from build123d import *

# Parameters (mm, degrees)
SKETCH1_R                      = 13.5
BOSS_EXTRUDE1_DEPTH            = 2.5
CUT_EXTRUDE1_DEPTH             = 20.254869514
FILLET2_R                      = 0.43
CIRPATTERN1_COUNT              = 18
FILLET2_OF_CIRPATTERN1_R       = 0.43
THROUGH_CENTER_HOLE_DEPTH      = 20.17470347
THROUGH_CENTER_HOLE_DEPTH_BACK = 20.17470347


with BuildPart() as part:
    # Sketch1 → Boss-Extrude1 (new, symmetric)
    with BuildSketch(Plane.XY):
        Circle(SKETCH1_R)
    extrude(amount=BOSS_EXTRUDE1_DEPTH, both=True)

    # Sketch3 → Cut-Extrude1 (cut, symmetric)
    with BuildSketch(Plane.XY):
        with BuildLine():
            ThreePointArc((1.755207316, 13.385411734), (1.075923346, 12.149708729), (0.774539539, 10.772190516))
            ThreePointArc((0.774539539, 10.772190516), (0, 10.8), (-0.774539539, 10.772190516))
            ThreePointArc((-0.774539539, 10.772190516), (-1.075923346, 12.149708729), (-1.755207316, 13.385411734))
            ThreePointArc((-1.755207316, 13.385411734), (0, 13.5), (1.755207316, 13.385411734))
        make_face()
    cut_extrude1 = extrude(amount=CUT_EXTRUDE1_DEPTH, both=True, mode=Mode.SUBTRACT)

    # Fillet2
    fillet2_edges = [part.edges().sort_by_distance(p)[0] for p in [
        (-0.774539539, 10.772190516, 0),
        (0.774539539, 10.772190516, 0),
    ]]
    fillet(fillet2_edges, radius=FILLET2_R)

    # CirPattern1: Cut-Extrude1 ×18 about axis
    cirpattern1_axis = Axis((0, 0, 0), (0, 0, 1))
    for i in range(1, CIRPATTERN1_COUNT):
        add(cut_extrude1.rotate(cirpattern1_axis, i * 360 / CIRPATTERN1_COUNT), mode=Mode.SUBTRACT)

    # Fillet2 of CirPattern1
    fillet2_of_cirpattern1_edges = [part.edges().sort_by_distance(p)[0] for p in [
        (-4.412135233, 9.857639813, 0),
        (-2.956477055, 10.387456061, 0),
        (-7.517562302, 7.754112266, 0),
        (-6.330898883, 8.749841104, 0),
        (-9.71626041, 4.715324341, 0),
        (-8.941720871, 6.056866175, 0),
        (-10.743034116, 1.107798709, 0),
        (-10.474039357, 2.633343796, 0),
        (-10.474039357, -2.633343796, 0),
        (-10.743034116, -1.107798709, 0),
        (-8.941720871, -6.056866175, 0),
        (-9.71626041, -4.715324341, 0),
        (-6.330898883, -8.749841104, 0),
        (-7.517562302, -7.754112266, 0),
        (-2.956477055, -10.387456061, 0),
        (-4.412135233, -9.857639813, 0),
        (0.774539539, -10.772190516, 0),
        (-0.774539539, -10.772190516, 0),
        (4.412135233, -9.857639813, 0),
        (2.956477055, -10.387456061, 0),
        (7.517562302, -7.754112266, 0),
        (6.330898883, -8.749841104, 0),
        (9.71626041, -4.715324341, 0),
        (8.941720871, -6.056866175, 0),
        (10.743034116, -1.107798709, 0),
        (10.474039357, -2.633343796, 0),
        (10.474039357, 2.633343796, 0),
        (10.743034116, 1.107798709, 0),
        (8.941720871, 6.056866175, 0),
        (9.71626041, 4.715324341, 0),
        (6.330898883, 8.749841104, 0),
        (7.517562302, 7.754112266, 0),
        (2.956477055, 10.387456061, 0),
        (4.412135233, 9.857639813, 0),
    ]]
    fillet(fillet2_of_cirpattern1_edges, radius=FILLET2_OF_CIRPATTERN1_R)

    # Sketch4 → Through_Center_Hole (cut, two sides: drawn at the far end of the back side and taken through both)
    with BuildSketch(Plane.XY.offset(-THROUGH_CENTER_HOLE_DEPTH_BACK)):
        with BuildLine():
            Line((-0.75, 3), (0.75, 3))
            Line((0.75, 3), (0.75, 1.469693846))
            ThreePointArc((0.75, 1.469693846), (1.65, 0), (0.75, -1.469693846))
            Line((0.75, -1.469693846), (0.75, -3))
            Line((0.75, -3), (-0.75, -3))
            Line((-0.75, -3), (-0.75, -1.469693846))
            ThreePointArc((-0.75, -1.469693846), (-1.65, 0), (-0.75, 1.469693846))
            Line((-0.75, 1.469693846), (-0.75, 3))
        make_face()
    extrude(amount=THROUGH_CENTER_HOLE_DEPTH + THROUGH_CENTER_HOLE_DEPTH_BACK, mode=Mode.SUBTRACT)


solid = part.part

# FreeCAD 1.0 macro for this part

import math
import FreeCAD as App
import Part
import Sketcher

V = App.Vector


def edges_at(feature, points):
    """Names of the edges that pass closest to the given points."""
    edges = feature.Shape.Edges
    near = lambda p: min(range(len(edges)), key=lambda i: edges[i].distToShape(Part.Vertex(*p))[0])
    return sorted({f"Edge{near(p) + 1}" for p in points})

doc = App.newDocument("Part")
body = doc.addObject("PartDesign::Body", "Body")

# Sketch on XY plane
sketch1 = body.newObject("Sketcher::SketchObject", "Sketch")
sketch1.AttachmentSupport = (doc.getObject("XY_Plane"), [""])
sketch1.MapMode = "FlatFace"
sketch1.addGeometry(Part.Circle(V(0, 0, 0), V(0, 0, 1), 13.5), False)
sketch1.addConstraint(Sketcher.Constraint("Coincident", 0, 3, -1, 1))
sketch1.addConstraint(Sketcher.Constraint("Diameter", 0, 27.0))
pad1 = body.newObject("PartDesign::Pad", "Pad")
pad1.Profile = sketch1
pad1.Length = 5
pad1.Midplane = True

# Sketch on XY plane
sketch2 = body.newObject("Sketcher::SketchObject", "Sketch001")
sketch2.AttachmentSupport = (doc.getObject("XY_Plane"), [""])
sketch2.MapMode = "FlatFace"
sketch2.addGeometry(Part.ArcOfCircle(Part.Circle(V(5.688076, 10.418899, 0), V(0, 0, 1), 4.926222), math.radians(142.973214), math.radians(175.88741)), False)
sketch2.addGeometry(Part.ArcOfCircle(Part.Circle(V(0, 0, 0), V(0, 0, 1), 13.5), math.radians(82.52952), math.radians(97.47048)), False)
sketch2.addGeometry(Part.ArcOfCircle(Part.Circle(V(-5.688076, 10.418899, 0), V(0, 0, 1), 4.926222), math.radians(4.11259), math.radians(37.026786)), False)
sketch2.addGeometry(Part.ArcOfCircle(Part.Circle(V(0, 0, 0), V(0, 0, 1), 10.8), math.radians(85.88741), math.radians(94.11259)), False)
sketch2.addConstraint(Sketcher.Constraint("Coincident", 0, 1, 1, 1))
sketch2.addConstraint(Sketcher.Constraint("Coincident", 1, 2, 2, 2))
sketch2.addConstraint(Sketcher.Constraint("Coincident", 2, 1, 3, 2))
sketch2.addConstraint(Sketcher.Constraint("Coincident", 3, 1, 0, 2))
sketch2.addConstraint(Sketcher.Constraint("Coincident", 1, 3, -1, 1))
sketch2.addConstraint(Sketcher.Constraint("Coincident", 3, 3, -1, 1))
sketch2.addConstraint(Sketcher.Constraint("Equal", 0, 2))
sketch2.addConstraint(Sketcher.Constraint("Symmetric", 0, 3, 2, 3, -2))
sketch2.addConstraint(Sketcher.Constraint("Radius", 1, 13.5))
sketch2.addConstraint(Sketcher.Constraint("Radius", 3, 10.8))
sketch2.addConstraint(Sketcher.Constraint("Radius", 0, 4.926222))
sketch2.addConstraint(Sketcher.Constraint("DistanceY", -1, 1, 0, 3, 10.418899))
sketch2.addConstraint(Sketcher.Constraint("DistanceY", -1, 1, 0, 1, 13.385412))
pocket1 = body.newObject("PartDesign::Pocket", "Pocket")
pocket1.Profile = sketch2
pocket1.Length = 40.509739
pocket1.Midplane = True
doc.recompute()

fillet = body.newObject("PartDesign::Fillet", "Fillet")
fillet.Base = (pocket1, edges_at(pocket1, [(-0.775, 10.772, 0), (0.775, 10.772, 0)]))
fillet.Radius = 0.43
doc.recompute()

polarpattern = body.newObject("PartDesign::PolarPattern", "PolarPattern")
polarpattern.Originals = [pocket1]
polarpattern.Axis = (doc.getObject("Z_Axis"), [""])
polarpattern.Angle = 360
polarpattern.Occurrences = 18
body.Tip = polarpattern
doc.recompute()

fillet2 = body.newObject("PartDesign::Fillet", "Fillet001")
fillet2.Base = (polarpattern, edges_at(polarpattern, [
    (-4.412, 9.858, 0),
    (-2.956, 10.387, 0),
    (-7.518, 7.754, 0),
    (-6.331, 8.75, 0),
    (-9.716, 4.715, 0),
    (-8.942, 6.057, 0),
    (-10.743, 1.108, 0),
    (-10.474, 2.633, 0),
    (-10.474, -2.633, 0),
    (-10.743, -1.108, 0),
    (-8.942, -6.057, 0),
    (-9.716, -4.715, 0),
    (-6.331, -8.75, 0),
    (-7.518, -7.754, 0),
    (-2.956, -10.387, 0),
    (-4.412, -9.858, 0),
    (0.775, -10.772, 0),
    (-0.775, -10.772, 0),
    (4.412, -9.858, 0),
    (2.956, -10.387, 0),
    (7.518, -7.754, 0),
    (6.331, -8.75, 0),
    (9.716, -4.715, 0),
    (8.942, -6.057, 0),
    (10.743, -1.108, 0),
    (10.474, -2.633, 0),
    (10.474, 2.633, 0),
    (10.743, 1.108, 0),
    (8.942, 6.057, 0),
    (9.716, 4.715, 0),
    (6.331, 8.75, 0),
    (7.518, 7.754, 0),
    (2.956, 10.387, 0),
    (4.412, 9.858, 0),
]))
fillet2.Radius = 0.43

# Sketch on XY plane
sketch3 = body.newObject("Sketcher::SketchObject", "Sketch002")
sketch3.AttachmentSupport = (doc.getObject("XY_Plane"), [""])
sketch3.MapMode = "FlatFace"
sketch3.addGeometry(Part.LineSegment(V(0.75, 3, 0), V(-0.75, 3, 0)), False)
sketch3.addGeometry(Part.LineSegment(V(-0.75, 3, 0), V(-0.75, 1.469694, 0)), False)
sketch3.addGeometry(Part.ArcOfCircle(Part.Circle(V(0, 0, 0), V(0, 0, 1), 1.65), math.radians(117.035692), math.radians(242.964308)), False)
sketch3.addGeometry(Part.LineSegment(V(-0.75, -1.469694, 0), V(-0.75, -3, 0)), False)
sketch3.addGeometry(Part.LineSegment(V(-0.75, -3, 0), V(0.75, -3, 0)), False)
sketch3.addGeometry(Part.LineSegment(V(0.75, -3, 0), V(0.75, -1.469694, 0)), False)
sketch3.addGeometry(Part.ArcOfCircle(Part.Circle(V(0, 0, 0), V(0, 0, 1), 1.65), math.radians(-62.964308), math.radians(62.964308)), False)
sketch3.addGeometry(Part.LineSegment(V(0.75, 1.469694, 0), V(0.75, 3, 0)), False)
sketch3.addConstraint(Sketcher.Constraint("Coincident", 0, 2, 1, 1))
sketch3.addConstraint(Sketcher.Constraint("Coincident", 1, 2, 2, 1))
sketch3.addConstraint(Sketcher.Constraint("Coincident", 2, 2, 3, 1))
sketch3.addConstraint(Sketcher.Constraint("Coincident", 3, 2, 4, 1))
sketch3.addConstraint(Sketcher.Constraint("Coincident", 4, 2, 5, 1))
sketch3.addConstraint(Sketcher.Constraint("Coincident", 5, 2, 6, 1))
sketch3.addConstraint(Sketcher.Constraint("Coincident", 6, 2, 7, 1))
sketch3.addConstraint(Sketcher.Constraint("Coincident", 7, 2, 0, 1))
sketch3.addConstraint(Sketcher.Constraint("Horizontal", 0))
sketch3.addConstraint(Sketcher.Constraint("Vertical", 1))
sketch3.addConstraint(Sketcher.Constraint("Vertical", 3))
sketch3.addConstraint(Sketcher.Constraint("Horizontal", 4))
sketch3.addConstraint(Sketcher.Constraint("Vertical", 5))
sketch3.addConstraint(Sketcher.Constraint("Vertical", 7))
sketch3.addConstraint(Sketcher.Constraint("Coincident", 2, 3, -1, 1))
sketch3.addConstraint(Sketcher.Constraint("Coincident", 6, 3, -1, 1))
sketch3.addConstraint(Sketcher.Constraint("Equal", 2, 6))
sketch3.addConstraint(Sketcher.Constraint("Symmetric", 0, 2, 4, 2, -1, 1))
sketch3.addConstraint(Sketcher.Constraint("Horizontal", 2, 2, 5, 2))
sketch3.addConstraint(Sketcher.Constraint("Horizontal", 1, 2, 6, 2))
sketch3.addConstraint(Sketcher.Constraint("Radius", 2, 1.65))
sketch3.addConstraint(Sketcher.Constraint("DistanceX", 0, 2, 0, 1, 1.5))
sketch3.addConstraint(Sketcher.Constraint("DistanceY", -1, 1, 0, 2, 3.0))
pocket2 = body.newObject("PartDesign::Pocket", "Pocket001")
pocket2.Profile = sketch3
pocket2.Type = "ThroughAll"
pocket2.Midplane = True

doc.recompute()
